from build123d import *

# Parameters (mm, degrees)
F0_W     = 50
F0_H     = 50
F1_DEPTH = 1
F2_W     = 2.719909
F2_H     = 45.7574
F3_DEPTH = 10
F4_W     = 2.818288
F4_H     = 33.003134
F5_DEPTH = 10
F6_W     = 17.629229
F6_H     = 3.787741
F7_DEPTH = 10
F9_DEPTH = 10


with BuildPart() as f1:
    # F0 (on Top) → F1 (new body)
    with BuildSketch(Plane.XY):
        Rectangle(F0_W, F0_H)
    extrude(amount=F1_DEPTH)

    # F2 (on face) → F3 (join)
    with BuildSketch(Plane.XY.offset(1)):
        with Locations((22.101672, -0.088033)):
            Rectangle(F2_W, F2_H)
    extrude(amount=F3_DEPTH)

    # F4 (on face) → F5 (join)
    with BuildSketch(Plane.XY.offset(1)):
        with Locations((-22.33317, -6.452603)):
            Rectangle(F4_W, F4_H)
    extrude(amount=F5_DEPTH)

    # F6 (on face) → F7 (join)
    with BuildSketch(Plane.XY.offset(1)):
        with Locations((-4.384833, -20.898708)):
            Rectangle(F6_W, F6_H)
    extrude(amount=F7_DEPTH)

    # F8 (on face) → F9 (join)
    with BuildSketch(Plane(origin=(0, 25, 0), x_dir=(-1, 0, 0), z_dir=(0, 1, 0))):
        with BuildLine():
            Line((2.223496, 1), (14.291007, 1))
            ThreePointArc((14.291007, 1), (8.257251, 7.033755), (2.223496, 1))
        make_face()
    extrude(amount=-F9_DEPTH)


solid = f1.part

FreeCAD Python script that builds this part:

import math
import FreeCAD as App
import Part
import Sketcher

doc = App.newDocument("Part")
params = doc.addObject("Spreadsheet::Sheet", "Params")
for row, (alias, value) in enumerate([
    ("sketch1_width", "50 mm"),
    ("pad1_length", "1 mm"),
    ("pad2_length", "10 mm"),
    ("pad3_length", "10 mm"),
    ("pad4_length", "10 mm"),
    ("pad5_length", "10 mm"),
], start=1):
    params.set(f"A{row}", alias)
    params.set(f"B{row}", "=" + value)
    params.setAlias(f"B{row}", alias)

body = doc.addObject("PartDesign::Body", "Body")

# Sketch on XY plane
sketch1 = doc.addObject("Sketcher::SketchObject", "Sketch")
body.addObject(sketch1)
sketch1.AttachmentSupport = (doc.XY_Plane, [""])
sketch1.MapMode = "FlatFace"
sketch1.addGeometry(Part.LineSegment(App.Vector(-25, 25, 0), App.Vector(-25, -25, 0)), False)
sketch1.addGeometry(Part.LineSegment(App.Vector(-25, -25, 0), App.Vector(25, -25, 0)), False)
sketch1.addGeometry(Part.LineSegment(App.Vector(25, -25, 0), App.Vector(25, 25, 0)), False)
sketch1.addGeometry(Part.LineSegment(App.Vector(25, 25, 0), App.Vector(-25, 25, 0)), False)
sketch1.addConstraint(Sketcher.Constraint("Coincident", 0, 2, 1, 1))
sketch1.addConstraint(Sketcher.Constraint("Coincident", 1, 2, 2, 1))
sketch1.addConstraint(Sketcher.Constraint("Coincident", 2, 2, 3, 1))
sketch1.addConstraint(Sketcher.Constraint("Coincident", 3, 2, 0, 1))
sketch1.addConstraint(Sketcher.Constraint("Vertical", 0))
sketch1.addConstraint(Sketcher.Constraint("Horizontal", 1))
sketch1.addConstraint(Sketcher.Constraint("Vertical", 2))
sketch1.addConstraint(Sketcher.Constraint("Horizontal", 3))
sketch1.addConstraint(Sketcher.Constraint("Symmetric", 0, 2, 2, 2, -1, 1))
sketch1.addConstraint(Sketcher.Constraint("Equal", 3, 0))
sketch1.addConstraint(Sketcher.Constraint("DistanceX", 1, 1, 1, 2, 50.0))
sketch1.setExpression("Constraints[10]", "Params.sketch1_width")
pad1 = doc.addObject("PartDesign::Pad", "Pad")
body.addObject(pad1)
pad1.Profile = sketch1
pad1.setExpression("Length", "Params.pad1_length")

# Sketch on XY plane
sketch2 = doc.addObject("Sketcher::SketchObject", "Sketch001")
body.addObject(sketch2)
sketch2.AttachmentSupport = (doc.XY_Plane, [""])
sketch2.MapMode = "FlatFace"
sketch2.AttachmentOffset = App.Placement(App.Vector(0, 0, 1), App.Rotation())
sketch2.addGeometry(Part.LineSegment(App.Vector(20.7, 22.8, 0), App.Vector(20.7, -23, 0)), False)
sketch2.addGeometry(Part.LineSegment(App.Vector(20.7, -23, 0), App.Vector(23.5, -23, 0)), False)
sketch2.addGeometry(Part.LineSegment(App.Vector(23.5, -23, 0), App.Vector(23.5, 22.8, 0)), False)
sketch2.addGeometry(Part.LineSegment(App.Vector(23.5, 22.8, 0), App.Vector(20.7, 22.8, 0)), False)
sketch2.addConstraint(Sketcher.Constraint("Coincident", 0, 2, 1, 1))
sketch2.addConstraint(Sketcher.Constraint("Coincident", 1, 2, 2, 1))
sketch2.addConstraint(Sketcher.Constraint("Coincident", 2, 2, 3, 1))
sketch2.addConstraint(Sketcher.Constraint("Coincident", 3, 2, 0, 1))
sketch2.addConstraint(Sketcher.Constraint("Vertical", 0))
sketch2.addConstraint(Sketcher.Constraint("Horizontal", 1))
sketch2.addConstraint(Sketcher.Constraint("Vertical", 2))
sketch2.addConstraint(Sketcher.Constraint("Horizontal", 3))
sketch2.addConstraint(Sketcher.Constraint("DistanceY", 0, 2, 0, 1, 45.7574))
sketch2.addConstraint(Sketcher.Constraint("DistanceX", 1, 1, 1, 2, 2.719909))
sketch2.addConstraint(Sketcher.Constraint("DistanceX", -1, 1, 0, 2, 20.741718))
sketch2.addConstraint(Sketcher.Constraint("DistanceY", 0, 2, -1, 1, 22.966733))
pad2 = doc.addObject("PartDesign::Pad", "Pad001")
body.addObject(pad2)
pad2.Profile = sketch2
pad2.setExpression("Length", "Params.pad2_length")

# Sketch on XY plane
sketch3 = doc.addObject("Sketcher::SketchObject", "Sketch002")
body.addObject(sketch3)
sketch3.AttachmentSupport = (doc.XY_Plane, [""])
sketch3.MapMode = "FlatFace"
sketch3.AttachmentOffset = App.Placement(App.Vector(0, 0, 1), App.Rotation())
sketch3.addGeometry(Part.LineSegment(App.Vector(-23.7, 10, 0), App.Vector(-23.7, -23, 0)), False)
sketch3.addGeometry(Part.LineSegment(App.Vector(-23.7, -23, 0), App.Vector(-20.9, -23, 0)), False)
sketch3.addGeometry(Part.LineSegment(App.Vector(-20.9, -23, 0), App.Vector(-20.9, 10, 0)), False)
sketch3.addGeometry(Part.LineSegment(App.Vector(-20.9, 10, 0), App.Vector(-23.7, 10, 0)), False)
sketch3.addConstraint(Sketcher.Constraint("Coincident", 0, 2, 1, 1))
sketch3.addConstraint(Sketcher.Constraint("Coincident", 1, 2, 2, 1))
sketch3.addConstraint(Sketcher.Constraint("Coincident", 2, 2, 3, 1))
sketch3.addConstraint(Sketcher.Constraint("Coincident", 3, 2, 0, 1))
sketch3.addConstraint(Sketcher.Constraint("Vertical", 0))
sketch3.addConstraint(Sketcher.Constraint("Horizontal", 1))
sketch3.addConstraint(Sketcher.Constraint("Vertical", 2))
sketch3.addConstraint(Sketcher.Constraint("Horizontal", 3))
sketch3.addConstraint(Sketcher.Constraint("DistanceX", 1, 1, 1, 2, 2.818288))
sketch3.addConstraint(Sketcher.Constraint("DistanceY", 0, 2, 0, 1, 33.003134))
sketch3.addConstraint(Sketcher.Constraint("DistanceY", 0, 2, -1, 1, 22.95417))
sketch3.addConstraint(Sketcher.Constraint("DistanceX", 0, 2, -1, 1, 23.742314))
pad3 = doc.addObject("PartDesign::Pad", "Pad002")
body.addObject(pad3)
pad3.Profile = sketch3
pad3.setExpression("Length", "Params.pad3_length")

# Sketch on XY plane
sketch4 = doc.addObject("Sketcher::SketchObject", "Sketch003")
body.addObject(sketch4)
sketch4.AttachmentSupport = (doc.XY_Plane, [""])
sketch4.MapMode = "FlatFace"
sketch4.AttachmentOffset = App.Placement(App.Vector(0, 0, 1), App.Rotation())
sketch4.addGeometry(Part.LineSegment(App.Vector(-13.2, -19, 0), App.Vector(-13.2, -22.8, 0)), False)
sketch4.addGeometry(Part.LineSegment(App.Vector(-13.2, -22.8, 0), App.Vector(4.4, -22.8, 0)), False)
sketch4.addGeometry(Part.LineSegment(App.Vector(4.4, -22.8, 0), App.Vector(4.4, -19, 0)), False)
sketch4.addGeometry(Part.LineSegment(App.Vector(4.4, -19, 0), App.Vector(-13.2, -19, 0)), False)
sketch4.addConstraint(Sketcher.Constraint("Coincident", 0, 2, 1, 1))
sketch4.addConstraint(Sketcher.Constraint("Coincident", 1, 2, 2, 1))
sketch4.addConstraint(Sketcher.Constraint("Coincident", 2, 2, 3, 1))
sketch4.addConstraint(Sketcher.Constraint("Coincident", 3, 2, 0, 1))
sketch4.addConstraint(Sketcher.Constraint("Vertical", 0))
sketch4.addConstraint(Sketcher.Constraint("Horizontal", 1))
sketch4.addConstraint(Sketcher.Constraint("Vertical", 2))
sketch4.addConstraint(Sketcher.Constraint("Horizontal", 3))
sketch4.addConstraint(Sketcher.Constraint("DistanceX", 1, 1, 1, 2, 17.629229))
sketch4.addConstraint(Sketcher.Constraint("DistanceY", 0, 2, 0, 1, 3.787741))
sketch4.addConstraint(Sketcher.Constraint("DistanceY", 0, 2, -1, 1, 22.792579))
sketch4.addConstraint(Sketcher.Constraint("DistanceX", -1, 1, 1, 2, 4.429781))
pad4 = doc.addObject("PartDesign::Pad", "Pad003")
body.addObject(pad4)
pad4.Profile = sketch4
pad4.setExpression("Length", "Params.pad4_length")

# Sketch on XZ plane
sketch5 = doc.addObject("Sketcher::SketchObject", "Sketch004")
body.addObject(sketch5)
sketch5.AttachmentSupport = (doc.XZ_Plane, [""])
sketch5.MapMode = "FlatFace"
sketch5.AttachmentOffset = App.Placement(App.Vector(0, 0, -25), App.Rotation())
sketch5.addGeometry(Part.LineSegment(App.Vector(-2, 1, 0), App.Vector(-14, 1, 0)), False)
sketch5.addGeometry(Part.ArcOfCircle(Part.Circle(App.Vector(-8, 1, 0), App.Vector(0, 0, 1), 6), math.radians(0), math.radians(180)), False)
sketch5.addConstraint(Sketcher.Constraint("Coincident", 0, 1, 1, 1))
sketch5.addConstraint(Sketcher.Constraint("Coincident", 1, 2, 0, 2))
sketch5.addConstraint(Sketcher.Constraint("Horizontal", 0))
sketch5.addConstraint(Sketcher.Constraint("Horizontal", 1, 3, 0, 1))
sketch5.addConstraint(Sketcher.Constraint("DistanceY", -1, 1, 1, 3, 1.0))
sketch5.addConstraint(Sketcher.Constraint("Radius", 1, 6.033755))
sketch5.addConstraint(Sketcher.Constraint("DistanceX", 1, 3, -1, 1, 8.257252))
pad5 = doc.addObject("PartDesign::Pad", "Pad004")
body.addObject(pad5)
pad5.Profile = sketch5
pad5.setExpression("Length", "Params.pad5_length")

doc.recompute()
